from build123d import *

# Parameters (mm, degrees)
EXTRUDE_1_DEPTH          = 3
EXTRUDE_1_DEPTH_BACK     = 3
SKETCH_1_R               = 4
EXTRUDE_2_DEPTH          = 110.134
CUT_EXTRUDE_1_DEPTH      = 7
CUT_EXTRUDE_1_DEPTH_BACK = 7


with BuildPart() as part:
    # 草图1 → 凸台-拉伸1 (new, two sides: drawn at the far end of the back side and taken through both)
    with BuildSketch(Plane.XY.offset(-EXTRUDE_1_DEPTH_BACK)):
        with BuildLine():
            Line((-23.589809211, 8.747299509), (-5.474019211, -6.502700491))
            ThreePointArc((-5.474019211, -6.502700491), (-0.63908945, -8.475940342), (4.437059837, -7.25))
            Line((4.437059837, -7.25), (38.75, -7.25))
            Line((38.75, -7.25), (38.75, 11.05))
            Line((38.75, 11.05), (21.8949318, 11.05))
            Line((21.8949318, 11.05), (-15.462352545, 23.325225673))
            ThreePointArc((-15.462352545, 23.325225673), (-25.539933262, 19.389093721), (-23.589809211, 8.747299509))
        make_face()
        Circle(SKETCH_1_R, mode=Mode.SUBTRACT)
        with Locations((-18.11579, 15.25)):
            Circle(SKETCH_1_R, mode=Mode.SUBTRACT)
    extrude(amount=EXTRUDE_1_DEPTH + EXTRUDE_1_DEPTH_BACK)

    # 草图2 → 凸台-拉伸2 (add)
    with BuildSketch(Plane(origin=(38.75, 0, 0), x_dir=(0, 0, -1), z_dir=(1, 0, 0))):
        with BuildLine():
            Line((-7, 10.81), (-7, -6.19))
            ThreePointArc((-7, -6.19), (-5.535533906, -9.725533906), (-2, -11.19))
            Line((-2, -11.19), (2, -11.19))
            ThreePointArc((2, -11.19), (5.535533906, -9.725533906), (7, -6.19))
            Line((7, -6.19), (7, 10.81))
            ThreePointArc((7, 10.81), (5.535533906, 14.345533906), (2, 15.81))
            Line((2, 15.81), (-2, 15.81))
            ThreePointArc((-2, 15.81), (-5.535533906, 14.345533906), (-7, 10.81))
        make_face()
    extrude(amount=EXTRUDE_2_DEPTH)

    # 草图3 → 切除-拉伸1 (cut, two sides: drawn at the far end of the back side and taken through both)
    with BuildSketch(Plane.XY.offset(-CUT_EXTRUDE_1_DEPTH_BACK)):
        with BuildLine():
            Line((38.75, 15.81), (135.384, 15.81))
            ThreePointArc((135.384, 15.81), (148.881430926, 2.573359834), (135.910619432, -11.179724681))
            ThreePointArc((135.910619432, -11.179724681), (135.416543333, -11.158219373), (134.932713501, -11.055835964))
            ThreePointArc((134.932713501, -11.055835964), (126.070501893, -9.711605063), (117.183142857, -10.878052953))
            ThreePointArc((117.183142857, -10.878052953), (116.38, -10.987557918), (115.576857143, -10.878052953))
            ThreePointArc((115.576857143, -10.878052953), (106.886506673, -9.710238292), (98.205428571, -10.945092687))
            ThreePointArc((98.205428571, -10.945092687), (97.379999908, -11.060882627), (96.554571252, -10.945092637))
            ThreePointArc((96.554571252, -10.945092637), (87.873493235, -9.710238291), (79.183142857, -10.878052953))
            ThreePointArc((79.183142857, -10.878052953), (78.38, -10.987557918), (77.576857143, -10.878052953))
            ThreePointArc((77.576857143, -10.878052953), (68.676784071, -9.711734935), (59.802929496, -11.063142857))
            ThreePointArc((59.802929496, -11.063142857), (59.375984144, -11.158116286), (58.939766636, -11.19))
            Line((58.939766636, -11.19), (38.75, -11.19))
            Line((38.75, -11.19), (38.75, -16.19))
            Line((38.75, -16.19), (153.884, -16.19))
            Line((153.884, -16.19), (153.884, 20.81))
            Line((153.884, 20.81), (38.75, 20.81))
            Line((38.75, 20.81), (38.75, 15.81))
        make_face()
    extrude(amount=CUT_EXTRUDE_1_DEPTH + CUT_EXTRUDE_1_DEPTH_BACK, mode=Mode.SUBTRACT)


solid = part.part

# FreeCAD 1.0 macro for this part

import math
import FreeCAD as App
import Part
import Sketcher
from FreeCAD import Vector
Q = App.Units.Quantity

doc = App.newDocument("Part")
body = doc.addObject("PartDesign::Body", "Body")

# Sketch on XY plane
sketch1 = body.newObject("Sketcher::SketchObject", "Sketch")
sketch1.AttachmentSupport = (doc.getObject("XY_Plane"), [""])
sketch1.MapMode = "FlatFace"
sketch1.addGeometry([
    Part.LineSegment(Vector(-23.6, 8.7, 0), Vector(-5.5, -6.5, 0)),  # 0
    Part.ArcOfCircle(Part.Circle(Vector(0, 0, 0), Vector(0, 0, 1), 8.5), math.radians(-130), math.radians(-59)),  # 1
    Part.LineSegment(Vector(4.4, -7.2, 0), Vector(38.8, -7.2, 0)),  # 2
    Part.LineSegment(Vector(38.8, -7.2, 0), Vector(38.8, 11.1, 0)),  # 3
    Part.LineSegment(Vector(38.8, 11.1, 0), Vector(21.9, 11.1, 0)),  # 4
    Part.LineSegment(Vector(21.9, 11.1, 0), Vector(-15.5, 23.3, 0)),  # 5
    Part.ArcOfCircle(Part.Circle(Vector(-18.1, 15.2, 0), Vector(0, 0, 1), 8.5), math.radians(72), math.radians(230)),  # 6
    Part.Circle(Vector(0, 0, 0), Vector(0, 0, 1), 4),  # 7
    Part.Circle(Vector(-18.1, 15.2, 0), Vector(0, 0, 1), 4),  # 8
], False)
sketch1.addConstraint([
    Sketcher.Constraint("Tangent", 0, 2, 1, 1),
    Sketcher.Constraint("Coincident", 1, 2, 2, 1),
    Sketcher.Constraint("Coincident", 2, 2, 3, 1),
    Sketcher.Constraint("Coincident", 3, 2, 4, 1),
    Sketcher.Constraint("Coincident", 4, 2, 5, 1),
    Sketcher.Constraint("Tangent", 5, 2, 6, 1),
    Sketcher.Constraint("Tangent", 6, 2, 0, 1),
    Sketcher.Constraint("Horizontal", 2),
    Sketcher.Constraint("Vertical", 3),
    Sketcher.Constraint("Horizontal", 4),
    Sketcher.Constraint("Coincident", 1, 3, -1, 1),
    Sketcher.Constraint("Coincident", 7, 3, -1, 1),
    Sketcher.Constraint("Coincident", 8, 3, 6, 3),
    Sketcher.Constraint("Equal", 1, 6),
    Sketcher.Constraint("Equal", 7, 8),
    Sketcher.Constraint("Diameter", 7, Q("8 mm")),
    Sketcher.Constraint("Radius", 1, Q("8.5 mm")),
    Sketcher.Constraint("DistanceY", 3, 1, 3, 2, Q("18.3 mm")),
    Sketcher.Constraint("Angle", 5, Q("161.81 deg")),
    Sketcher.Constraint("DistanceY", 1, 2, 8, 3, Q("22.5 mm")),
    Sketcher.Constraint("DistanceY", -1, 1, 6, 3, Q("15.25 mm")),
    Sketcher.Constraint("DistanceX", -1, 1, 2, 2, Q("38.75 mm")),
    Sketcher.Constraint("DistanceX", 4, 2, 4, 1, Q("16.855068 mm")),
])
pad1 = body.newObject("PartDesign::Pad", "Pad")
pad1.Profile = sketch1
pad1.Type = "TwoLengths"
pad1.Length = 3
pad1.Length2 = 3

# Sketch on YZ plane
sketch2 = body.newObject("Sketcher::SketchObject", "Sketch001")
sketch2.AttachmentSupport = (doc.getObject("YZ_Plane"), [""])
sketch2.MapMode = "FlatFace"
sketch2.AttachmentOffset = App.Placement(Vector(0, 0, 38.75), App.Rotation())
sketch2.addGeometry([
    Part.LineSegment(Vector(10.8, 7, 0), Vector(-6.2, 7, 0)),  # 0
    Part.ArcOfCircle(Part.Circle(Vector(-6.2, 2, 0), Vector(0, 0, 1), 5), math.radians(90), math.radians(180)),  # 1
    Part.LineSegment(Vector(-11.2, 2, 0), Vector(-11.2, -2, 0)),  # 2
    Part.ArcOfCircle(Part.Circle(Vector(-6.2, -2, 0), Vector(0, 0, 1), 5), math.radians(180), math.radians(270)),  # 3
    Part.LineSegment(Vector(-6.2, -7, 0), Vector(10.8, -7, 0)),  # 4
    Part.ArcOfCircle(Part.Circle(Vector(10.8, -2, 0), Vector(0, 0, 1), 5), math.radians(-90), math.radians(0)),  # 5
    Part.LineSegment(Vector(15.8, -2, 0), Vector(15.8, 2, 0)),  # 6
    Part.ArcOfCircle(Part.Circle(Vector(10.8, 2, 0), Vector(0, 0, 1), 5), math.radians(0), math.radians(90)),  # 7
], False)
sketch2.addConstraint([
    Sketcher.Constraint("Tangent", 0, 2, 1, 1),
    Sketcher.Constraint("Tangent", 1, 2, 2, 1),
    Sketcher.Constraint("Tangent", 2, 2, 3, 1),
    Sketcher.Constraint("Tangent", 3, 2, 4, 1),
    Sketcher.Constraint("Tangent", 4, 2, 5, 1),
    Sketcher.Constraint("Tangent", 5, 2, 6, 1),
    Sketcher.Constraint("Tangent", 6, 2, 7, 1),
    Sketcher.Constraint("Tangent", 7, 2, 0, 1),
    Sketcher.Constraint("Horizontal", 0),
    Sketcher.Constraint("Vertical", 2),
    Sketcher.Constraint("Horizontal", 4),
    Sketcher.Constraint("Vertical", 6),
    Sketcher.Constraint("Equal", 1, 3),
    Sketcher.Constraint("Equal", 3, 5),
    Sketcher.Constraint("Equal", 5, 7),
    Sketcher.Constraint("Radius", 1, Q("5 mm")),
    Sketcher.Constraint("DistanceX", 0, 2, 0, 1, Q("17 mm")),
    Sketcher.Constraint("DistanceY", 2, 2, 2, 1, Q("4 mm")),
    Sketcher.Constraint("DistanceY", -1, 1, 1, 3, Q("2 mm")),
    Sketcher.Constraint("DistanceX", 1, 3, -1, 1, Q("6.19 mm")),
])
pad2 = body.newObject("PartDesign::Pad", "Pad001")
pad2.Profile = sketch2
pad2.Length = 110.134

# Sketch on XY plane
sketch3 = body.newObject("Sketcher::SketchObject", "Sketch002")
sketch3.AttachmentSupport = (doc.getObject("XY_Plane"), [""])
sketch3.MapMode = "FlatFace"
sketch3.addGeometry([
    Part.LineSegment(Vector(38.8, 15.8, 0), Vector(135.4, 15.8, 0)),  # 0
    Part.ArcOfCircle(Part.Circle(Vector(135.4, 2.3, 0), Vector(0, 0, 1), 13.5), math.radians(-88), math.radians(90)),  # 1
    Part.ArcOfCircle(Part.Circle(Vector(135.8, -8.2, 0), Vector(0, 0, 1), 3), math.radians(-106.68), math.radians(-87.76)),  # 2
    Part.ArcOfCircle(Part.Circle(Vector(125.7, -41.7, 0), Vector(0, 0, 1), 32), math.radians(73), math.radians(106)),  # 3
    Part.ArcOfCircle(Part.Circle(Vector(116.4, -8, 0), Vector(0, 0, 1), 3), math.radians(-106), math.radians(-74)),  # 4
    Part.ArcOfCircle(Part.Circle(Vector(107, -41.7, 0), Vector(0, 0, 1), 32), math.radians(74), math.radians(106)),  # 5
    Part.ArcOfCircle(Part.Circle(Vector(97.4, -8.1, 0), Vector(0, 0, 1), 3), math.radians(-106), math.radians(-74)),  # 6
    Part.ArcOfCircle(Part.Circle(Vector(87.7, -41.7, 0), Vector(0, 0, 1), 32), math.radians(74), math.radians(106)),  # 7
    Part.ArcOfCircle(Part.Circle(Vector(78.4, -8, 0), Vector(0, 0, 1), 3), math.radians(-106), math.radians(-74)),  # 8
    Part.ArcOfCircle(Part.Circle(Vector(69, -41.7, 0), Vector(0, 0, 1), 32), math.radians(74), math.radians(107)),  # 9
    Part.ArcOfCircle(Part.Circle(Vector(58.9, -8.2, 0), Vector(0, 0, 1), 3), math.radians(-90), math.radians(-73.28)),  # 10
    Part.LineSegment(Vector(58.9, -11.2, 0), Vector(38.8, -11.2, 0)),  # 11
    Part.LineSegment(Vector(38.8, -11.2, 0), Vector(38.8, -16.2, 0)),  # 12
    Part.LineSegment(Vector(38.8, -16.2, 0), Vector(153.9, -16.2, 0)),  # 13
    Part.LineSegment(Vector(153.9, -16.2, 0), Vector(153.9, 20.8, 0)),  # 14
    Part.LineSegment(Vector(153.9, 20.8, 0), Vector(38.8, 20.8, 0)),  # 15
    Part.LineSegment(Vector(38.8, 20.8, 0), Vector(38.8, 15.8, 0)),  # 16
], False)
sketch3.addConstraint([
    Sketcher.Constraint("Tangent", 0, 2, 1, 2),
    Sketcher.Constraint("Tangent", 1, 1, 2, 2),
    Sketcher.Constraint("Tangent", 2, 1, 3, 1),
    Sketcher.Constraint("Tangent", 3, 2, 4, 2),
    Sketcher.Constraint("Tangent", 4, 1, 5, 1),
    Sketcher.Constraint("Tangent", 5, 2, 6, 2),
    Sketcher.Constraint("Tangent", 6, 1, 7, 1),
    Sketcher.Constraint("Tangent", 7, 2, 8, 2),
    Sketcher.Constraint("Tangent", 8, 1, 9, 1),
    Sketcher.Constraint("Tangent", 9, 2, 10, 2),
    Sketcher.Constraint("Tangent", 10, 1, 11, 1),
    Sketcher.Constraint("Coincident", 11, 2, 12, 1),
    Sketcher.Constraint("Coincident", 12, 2, 13, 1),
    Sketcher.Constraint("Coincident", 13, 2, 14, 1),
    Sketcher.Constraint("Coincident", 14, 2, 15, 1),
    Sketcher.Constraint("Coincident", 15, 2, 16, 1),
    Sketcher.Constraint("Coincident", 16, 2, 0, 1),
    Sketcher.Constraint("Horizontal", 0),
    Sketcher.Constraint("Horizontal", 11),
    Sketcher.Constraint("Vertical", 12),
    Sketcher.Constraint("Horizontal", 13),
    Sketcher.Constraint("Vertical", 14),
    Sketcher.Constraint("Horizontal", 15),
    Sketcher.Constraint("Vertical", 16),
    Sketcher.Constraint("Equal", 2, 4),
    Sketcher.Constraint("Equal", 3, 5),
    Sketcher.Constraint("Equal", 4, 6),
    Sketcher.Constraint("Equal", 5, 7),
    Sketcher.Constraint("Equal", 6, 8),
    Sketcher.Constraint("Equal", 7, 9),
    Sketcher.Constraint("Equal", 8, 10),
    Sketcher.Constraint("Horizontal", 3, 3, 5, 3),
    Sketcher.Constraint("Horizontal", 5, 3, 7, 3),
    Sketcher.Constraint("Horizontal", 4, 3, 8, 3),
    Sketcher.Constraint("Horizontal", 7, 3, 9, 3),
    Sketcher.Constraint("Vertical", 12, 2, 15, 2),
    Sketcher.Constraint("Equal", 12, 16),
    Sketcher.Constraint("Radius", 2, Q("3 mm")),
    Sketcher.Constraint("Radius", 3, Q("32 mm")),
    Sketcher.Constraint("Radius", 1, Q("13.5 mm")),
    Sketcher.Constraint("DistanceY", 12, 2, 12, 1, Q("5 mm")),
    Sketcher.Constraint("DistanceY", 14, 1, 14, 2, Q("37 mm")),
    Sketcher.Constraint("DistanceX", 6, 3, 4, 3, Q("19 mm")),
    Sketcher.Constraint("DistanceX", 1, 3, 13, 2, Q("18.5 mm")),
    Sketcher.Constraint("DistanceX", 0, 1, 0, 2, Q("96.634 mm")),
    Sketcher.Constraint("DistanceY", -1, 1, 1, 3, Q("2.31 mm")),
    Sketcher.Constraint("DistanceX", -1, 1, 3, 3, Q("125.75 mm")),
    Sketcher.Constraint("DistanceY", 3, 3, -1, 1, Q("41.71 mm")),
    Sketcher.Constraint("DistanceX", -1, 1, 4, 3, Q("116.38 mm")),
    Sketcher.Constraint("DistanceX", -1, 1, 11, 2, Q("38.75 mm")),
])
pocket1 = body.newObject("PartDesign::Pocket", "Pocket")
pocket1.Profile = sketch3
pocket1.Type = "ThroughAll"
pocket1.Midplane = True

doc.recompute()
